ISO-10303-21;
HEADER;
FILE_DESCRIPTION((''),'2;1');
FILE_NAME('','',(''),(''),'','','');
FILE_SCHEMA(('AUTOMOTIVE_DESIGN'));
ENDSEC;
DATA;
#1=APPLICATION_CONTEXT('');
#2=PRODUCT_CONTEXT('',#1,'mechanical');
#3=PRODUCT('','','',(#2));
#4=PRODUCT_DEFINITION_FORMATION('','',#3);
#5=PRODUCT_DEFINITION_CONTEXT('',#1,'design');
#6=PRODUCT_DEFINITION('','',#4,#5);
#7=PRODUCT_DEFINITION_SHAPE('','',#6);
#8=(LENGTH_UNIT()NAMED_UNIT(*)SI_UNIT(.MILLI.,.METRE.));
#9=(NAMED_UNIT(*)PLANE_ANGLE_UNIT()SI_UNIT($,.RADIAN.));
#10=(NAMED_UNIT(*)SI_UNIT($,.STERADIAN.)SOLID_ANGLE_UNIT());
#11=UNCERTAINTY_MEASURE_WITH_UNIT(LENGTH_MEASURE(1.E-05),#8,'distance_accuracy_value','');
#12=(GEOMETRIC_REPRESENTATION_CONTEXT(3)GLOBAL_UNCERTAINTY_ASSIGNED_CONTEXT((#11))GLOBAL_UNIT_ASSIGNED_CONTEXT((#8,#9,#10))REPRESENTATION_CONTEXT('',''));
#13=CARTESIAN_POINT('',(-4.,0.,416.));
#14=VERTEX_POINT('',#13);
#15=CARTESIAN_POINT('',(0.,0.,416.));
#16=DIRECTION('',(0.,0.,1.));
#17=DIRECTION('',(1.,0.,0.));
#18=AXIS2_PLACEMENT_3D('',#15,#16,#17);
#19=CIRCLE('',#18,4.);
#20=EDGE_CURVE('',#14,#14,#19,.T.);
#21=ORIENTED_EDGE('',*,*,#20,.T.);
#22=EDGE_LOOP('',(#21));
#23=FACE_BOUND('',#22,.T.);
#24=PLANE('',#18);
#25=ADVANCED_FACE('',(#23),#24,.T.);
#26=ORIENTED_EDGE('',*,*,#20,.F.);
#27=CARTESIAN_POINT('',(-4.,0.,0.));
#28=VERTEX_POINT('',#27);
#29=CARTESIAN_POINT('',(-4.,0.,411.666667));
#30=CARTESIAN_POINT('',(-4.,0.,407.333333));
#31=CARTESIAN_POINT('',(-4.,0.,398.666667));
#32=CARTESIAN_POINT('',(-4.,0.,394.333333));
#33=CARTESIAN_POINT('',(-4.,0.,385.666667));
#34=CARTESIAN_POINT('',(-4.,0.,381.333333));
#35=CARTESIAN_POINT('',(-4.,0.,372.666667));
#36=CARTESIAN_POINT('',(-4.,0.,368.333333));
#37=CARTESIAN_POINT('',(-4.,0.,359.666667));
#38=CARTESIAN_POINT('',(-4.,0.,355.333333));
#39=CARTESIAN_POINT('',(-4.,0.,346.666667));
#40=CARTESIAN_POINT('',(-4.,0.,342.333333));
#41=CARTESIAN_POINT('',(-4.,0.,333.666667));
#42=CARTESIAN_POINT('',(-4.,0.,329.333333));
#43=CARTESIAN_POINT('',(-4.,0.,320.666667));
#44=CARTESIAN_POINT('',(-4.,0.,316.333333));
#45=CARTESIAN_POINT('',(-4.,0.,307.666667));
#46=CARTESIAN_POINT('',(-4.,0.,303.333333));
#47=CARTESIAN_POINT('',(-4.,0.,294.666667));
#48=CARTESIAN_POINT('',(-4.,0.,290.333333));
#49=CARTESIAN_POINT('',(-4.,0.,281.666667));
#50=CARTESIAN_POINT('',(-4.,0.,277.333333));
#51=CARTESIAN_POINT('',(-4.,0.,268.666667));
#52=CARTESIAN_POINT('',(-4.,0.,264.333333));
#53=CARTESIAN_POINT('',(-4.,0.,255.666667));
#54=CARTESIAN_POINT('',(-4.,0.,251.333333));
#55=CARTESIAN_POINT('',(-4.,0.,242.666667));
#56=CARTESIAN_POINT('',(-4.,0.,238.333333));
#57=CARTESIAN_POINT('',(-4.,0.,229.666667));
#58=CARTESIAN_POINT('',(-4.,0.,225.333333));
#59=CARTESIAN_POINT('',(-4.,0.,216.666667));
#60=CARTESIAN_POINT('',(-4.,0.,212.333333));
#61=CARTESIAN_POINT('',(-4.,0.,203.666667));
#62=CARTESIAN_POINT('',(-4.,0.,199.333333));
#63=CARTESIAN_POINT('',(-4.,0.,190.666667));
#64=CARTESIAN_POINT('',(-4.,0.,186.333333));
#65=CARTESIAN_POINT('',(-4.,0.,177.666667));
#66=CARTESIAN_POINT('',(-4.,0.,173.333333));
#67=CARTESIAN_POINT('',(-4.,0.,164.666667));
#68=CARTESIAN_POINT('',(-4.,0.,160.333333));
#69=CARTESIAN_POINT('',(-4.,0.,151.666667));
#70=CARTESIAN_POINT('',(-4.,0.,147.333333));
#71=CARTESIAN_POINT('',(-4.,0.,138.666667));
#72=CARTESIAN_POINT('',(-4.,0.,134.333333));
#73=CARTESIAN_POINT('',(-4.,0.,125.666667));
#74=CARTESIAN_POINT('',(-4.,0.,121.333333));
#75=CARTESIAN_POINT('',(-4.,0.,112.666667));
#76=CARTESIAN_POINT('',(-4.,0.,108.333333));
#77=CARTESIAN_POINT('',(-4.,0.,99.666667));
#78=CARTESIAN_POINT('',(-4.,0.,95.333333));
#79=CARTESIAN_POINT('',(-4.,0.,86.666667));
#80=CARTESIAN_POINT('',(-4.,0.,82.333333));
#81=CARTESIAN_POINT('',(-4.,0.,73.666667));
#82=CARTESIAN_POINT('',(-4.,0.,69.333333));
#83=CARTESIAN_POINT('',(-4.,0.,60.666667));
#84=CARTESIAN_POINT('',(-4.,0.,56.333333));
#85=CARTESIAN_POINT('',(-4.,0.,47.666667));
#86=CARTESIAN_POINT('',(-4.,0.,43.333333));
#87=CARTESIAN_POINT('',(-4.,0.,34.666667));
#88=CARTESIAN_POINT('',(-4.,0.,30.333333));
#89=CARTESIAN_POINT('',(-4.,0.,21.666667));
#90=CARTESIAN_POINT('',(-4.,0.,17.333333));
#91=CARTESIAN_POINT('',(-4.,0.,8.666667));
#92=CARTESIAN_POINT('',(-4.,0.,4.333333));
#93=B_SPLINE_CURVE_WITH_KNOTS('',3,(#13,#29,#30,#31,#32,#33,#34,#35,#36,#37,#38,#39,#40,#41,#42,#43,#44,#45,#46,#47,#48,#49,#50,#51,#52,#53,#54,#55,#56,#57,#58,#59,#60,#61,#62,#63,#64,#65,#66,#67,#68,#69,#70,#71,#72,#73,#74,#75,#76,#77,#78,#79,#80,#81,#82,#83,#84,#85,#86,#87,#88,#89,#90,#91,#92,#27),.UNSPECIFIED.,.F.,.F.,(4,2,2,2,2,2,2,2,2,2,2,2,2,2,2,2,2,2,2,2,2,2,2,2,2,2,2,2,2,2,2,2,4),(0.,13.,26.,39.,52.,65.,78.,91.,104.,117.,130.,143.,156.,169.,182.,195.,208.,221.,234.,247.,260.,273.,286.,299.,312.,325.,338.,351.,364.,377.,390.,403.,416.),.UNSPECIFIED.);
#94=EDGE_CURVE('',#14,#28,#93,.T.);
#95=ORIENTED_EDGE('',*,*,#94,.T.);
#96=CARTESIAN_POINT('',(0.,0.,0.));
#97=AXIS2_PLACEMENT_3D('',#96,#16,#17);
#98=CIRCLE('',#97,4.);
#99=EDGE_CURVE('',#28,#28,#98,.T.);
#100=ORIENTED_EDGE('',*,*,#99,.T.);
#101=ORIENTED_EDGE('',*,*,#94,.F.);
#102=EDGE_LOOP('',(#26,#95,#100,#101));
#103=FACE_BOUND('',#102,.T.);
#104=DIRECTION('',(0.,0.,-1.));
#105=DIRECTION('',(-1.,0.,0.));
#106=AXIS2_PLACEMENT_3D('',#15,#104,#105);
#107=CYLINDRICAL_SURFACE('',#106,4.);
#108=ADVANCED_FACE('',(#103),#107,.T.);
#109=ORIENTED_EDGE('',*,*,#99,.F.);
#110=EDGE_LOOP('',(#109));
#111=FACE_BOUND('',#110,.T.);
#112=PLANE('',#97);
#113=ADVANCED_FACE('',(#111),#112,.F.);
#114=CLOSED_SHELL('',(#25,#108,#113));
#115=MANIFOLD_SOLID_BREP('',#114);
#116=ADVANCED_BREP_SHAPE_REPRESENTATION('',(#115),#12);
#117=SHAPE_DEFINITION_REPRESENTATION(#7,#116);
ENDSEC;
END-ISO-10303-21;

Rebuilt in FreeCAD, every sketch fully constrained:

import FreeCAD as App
import Part
import Sketcher

doc = App.newDocument("Part")
body = doc.addObject("PartDesign::Body", "Body")

sketch1 = body.newObject("Sketcher::SketchObject", "Sketch")
sketch1.AttachmentSupport = (doc.getObject("XY_Plane"), [""])
sketch1.MapMode = "FlatFace"
sketch1.addGeometry(Part.Circle(App.Vector(0, 0, 0), App.Vector(0, 0, 1), 4), False)
sketch1.addConstraint([
    Sketcher.Constraint("Coincident", 0, 3, -1, 1),
    Sketcher.Constraint("Diameter", 0, 8.0),
])
pad1 = body.newObject("PartDesign::Pad", "Pad")
pad1.Profile = sketch1
pad1.Length = 416

doc.recompute()
